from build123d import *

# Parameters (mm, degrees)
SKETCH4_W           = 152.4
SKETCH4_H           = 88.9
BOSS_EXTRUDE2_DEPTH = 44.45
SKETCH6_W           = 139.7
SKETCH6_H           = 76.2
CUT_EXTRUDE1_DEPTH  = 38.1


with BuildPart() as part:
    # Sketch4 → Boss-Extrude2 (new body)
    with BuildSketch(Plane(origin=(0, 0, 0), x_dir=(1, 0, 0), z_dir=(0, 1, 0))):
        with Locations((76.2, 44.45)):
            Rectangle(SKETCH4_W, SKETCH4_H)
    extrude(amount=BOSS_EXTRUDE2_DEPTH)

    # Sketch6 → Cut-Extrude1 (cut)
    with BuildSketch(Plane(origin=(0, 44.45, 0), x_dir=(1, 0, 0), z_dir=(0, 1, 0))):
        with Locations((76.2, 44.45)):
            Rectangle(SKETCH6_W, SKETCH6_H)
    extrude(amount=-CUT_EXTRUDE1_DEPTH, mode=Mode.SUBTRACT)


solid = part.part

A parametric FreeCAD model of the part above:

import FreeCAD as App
import Part
import Sketcher
Q = App.Units.Quantity

doc = App.newDocument("Part")
body = doc.addObject("PartDesign::Body", "Body")

# Sketch on XZ plane
sketch1 = doc.addObject("Sketcher::SketchObject", "Sketch")
body.addObject(sketch1)
sketch1.AttachmentSupport = (doc.XZ_Plane, [""])
sketch1.MapMode = "FlatFace"
sketch1.addGeometry([
    Part.LineSegment(App.Vector(0, -88.9, 0), App.Vector(0, 0, 0)),
    Part.LineSegment(App.Vector(0, 0, 0), App.Vector(152.4, 0, 0)),
    Part.LineSegment(App.Vector(152.4, 0, 0), App.Vector(152.4, -88.9, 0)),
    Part.LineSegment(App.Vector(152.4, -88.9, 0), App.Vector(0, -88.9, 0)),
], False)
sketch1.addConstraint([
    Sketcher.Constraint("Coincident", 0, 2, 1, 1),
    Sketcher.Constraint("Coincident", 1, 2, 2, 1),
    Sketcher.Constraint("Coincident", 2, 2, 3, 1),
    Sketcher.Constraint("Coincident", 3, 2, 0, 1),
    Sketcher.Constraint("Vertical", 0),
    Sketcher.Constraint("Horizontal", 1),
    Sketcher.Constraint("Vertical", 2),
    Sketcher.Constraint("Horizontal", 3),
    Sketcher.Constraint("Coincident", 0, 2, -1, 1),
    Sketcher.Constraint("DistanceX", 1, 1, 1, 2, Q("6 in")),
    Sketcher.Constraint("DistanceY", 0, 1, 0, 2, Q("3.5 in")),
])
pad1 = doc.addObject("PartDesign::Pad", "Pad")
body.addObject(pad1)
pad1.Profile = sketch1
pad1.Length = Q("1.75 in")
pad1.Reversed = True

# Sketch on XZ plane
sketch2 = doc.addObject("Sketcher::SketchObject", "Sketch001")
body.addObject(sketch2)
sketch2.AttachmentSupport = (doc.XZ_Plane, [""])
sketch2.MapMode = "FlatFace"
sketch2.AttachmentOffset = App.Placement(App.Vector(0, 0, -1.75 * 25.4), App.Rotation())
sketch2.addGeometry([
    Part.LineSegment(App.Vector(6.35, -82.55, 0), App.Vector(6.35, -6.35, 0)),
    Part.LineSegment(App.Vector(6.35, -6.35, 0), App.Vector(146.05, -6.35, 0)),
    Part.LineSegment(App.Vector(146.05, -6.35, 0), App.Vector(146.05, -82.55, 0)),
    Part.LineSegment(App.Vector(146.05, -82.55, 0), App.Vector(6.35, -82.55, 0)),
], False)
sketch2.addConstraint([
    Sketcher.Constraint("Coincident", 0, 2, 1, 1),
    Sketcher.Constraint("Coincident", 1, 2, 2, 1),
    Sketcher.Constraint("Coincident", 2, 2, 3, 1),
    Sketcher.Constraint("Coincident", 3, 2, 0, 1),
    Sketcher.Constraint("Vertical", 0),
    Sketcher.Constraint("Horizontal", 1),
    Sketcher.Constraint("Vertical", 2),
    Sketcher.Constraint("Horizontal", 3),
    Sketcher.Constraint("DistanceY", 0, 1, 0, 2, Q("3 in")),
    Sketcher.Constraint("DistanceX", 1, 1, 1, 2, Q("5.5 in")),
    Sketcher.Constraint("DistanceX", -1, 1, 0, 2, Q("0.25 in")),
    Sketcher.Constraint("DistanceY", 0, 2, -1, 1, Q("0.25 in")),
])
pocket1 = doc.addObject("PartDesign::Pocket", "Pocket")
body.addObject(pocket1)
pocket1.Profile = sketch2
pocket1.Length = Q("1.5 in")
pocket1.Reversed = True

doc.recompute()
